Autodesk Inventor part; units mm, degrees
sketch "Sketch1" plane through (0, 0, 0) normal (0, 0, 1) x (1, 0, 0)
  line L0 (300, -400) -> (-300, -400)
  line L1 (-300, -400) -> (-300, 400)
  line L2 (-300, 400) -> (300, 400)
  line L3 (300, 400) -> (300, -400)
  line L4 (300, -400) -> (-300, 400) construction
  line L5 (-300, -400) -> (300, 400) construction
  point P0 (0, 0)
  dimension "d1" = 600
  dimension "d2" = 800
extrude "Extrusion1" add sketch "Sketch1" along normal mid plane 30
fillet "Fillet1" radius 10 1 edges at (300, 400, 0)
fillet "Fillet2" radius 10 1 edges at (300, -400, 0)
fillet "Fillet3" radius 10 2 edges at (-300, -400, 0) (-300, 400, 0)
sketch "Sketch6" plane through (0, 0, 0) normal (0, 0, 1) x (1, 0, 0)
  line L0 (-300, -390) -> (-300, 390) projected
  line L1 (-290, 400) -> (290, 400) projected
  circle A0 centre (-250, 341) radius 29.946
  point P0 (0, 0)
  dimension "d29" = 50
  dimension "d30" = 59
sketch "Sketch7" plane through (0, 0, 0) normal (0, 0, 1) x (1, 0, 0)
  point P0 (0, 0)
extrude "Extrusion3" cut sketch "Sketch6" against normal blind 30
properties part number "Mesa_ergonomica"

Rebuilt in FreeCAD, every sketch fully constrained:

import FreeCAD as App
import Part
import Sketcher

V = App.Vector


def edges_at(feature, points):
    """Names of the edges that pass closest to the given points."""
    edges = feature.Shape.Edges
    near = lambda p: min(range(len(edges)), key=lambda i: edges[i].distToShape(Part.Vertex(*p))[0])
    return sorted({f"Edge{near(p) + 1}" for p in points})


def add_polygon(sketch, points):
    """Adds a closed chain of lines whose ends are joined by coincident constraints."""
    first, n = sketch.GeometryCount, len(points)
    for a, b in zip(points, points[1:] + points[:1]):
        sketch.addGeometry(Part.LineSegment(App.Vector(*a, 0), App.Vector(*b, 0)), False)
    for i in range(n):
        sketch.addConstraint(Sketcher.Constraint("Coincident", first + i, 2, first + (i + 1) % n, 1))

doc = App.newDocument("Part")
params = doc.addObject("Spreadsheet::Sheet", "Params")
for row, (alias, value) in enumerate([
    ("sketch1_width", "600 mm"),
    ("sketch1_height", "800 mm"),
    ("pad1_length", "30 mm"),
    ("fillet_radius", "10 mm"),
    ("fillet2_radius", "10 mm"),
    ("fillet3_radius", "10 mm"),
    ("pocket1_length", "30 mm"),
], start=1):
    params.set(f"A{row}", alias)
    params.set(f"B{row}", "=" + value)
    params.setAlias(f"B{row}", alias)

body = doc.addObject("PartDesign::Body", "Body")

sketch1 = body.newObject("Sketcher::SketchObject", "Sketch")
sketch1.AttachmentSupport = (doc.getObject("XY_Plane"), [""])
sketch1.MapMode = "FlatFace"
add_polygon(sketch1, [(-300, -400), (300, -400), (300, 400), (-300, 400)])
sketch1.addConstraint([
    Sketcher.Constraint("Horizontal", 0),
    Sketcher.Constraint("Vertical", 1),
    Sketcher.Constraint("Horizontal", 2),
    Sketcher.Constraint("Vertical", 3),
    Sketcher.Constraint("Symmetric", 0, 2, 2, 2, -1, 1),
    Sketcher.Constraint("DistanceX", 0, 1, 0, 2, 600.0),
    Sketcher.Constraint("DistanceY", 1, 1, 1, 2, 800.0),
])
sketch1.setExpression("Constraints[9]", "Params.sketch1_width")
sketch1.setExpression("Constraints[10]", "Params.sketch1_height")
pad1 = body.newObject("PartDesign::Pad", "Pad")
pad1.Profile = sketch1
pad1.setExpression("Length", "Params.pad1_length")
pad1.Midplane = True
doc.recompute()

fillet = body.newObject("PartDesign::Fillet", "Fillet")
fillet.Base = (pad1, edges_at(pad1, [(300, 400, 0)]))
fillet.setExpression("Radius", "Params.fillet_radius")
doc.recompute()

fillet2 = body.newObject("PartDesign::Fillet", "Fillet001")
fillet2.Base = (fillet, edges_at(fillet, [(300, -400, 0)]))
fillet2.setExpression("Radius", "Params.fillet2_radius")
doc.recompute()

fillet3 = body.newObject("PartDesign::Fillet", "Fillet002")
fillet3.Base = (fillet2, edges_at(fillet2, [(-300, -400, 0), (-300, 400, 0)]))
fillet3.setExpression("Radius", "Params.fillet3_radius")

sketch2 = body.newObject("Sketcher::SketchObject", "Sketch001")
sketch2.AttachmentSupport = (doc.getObject("XY_Plane"), [""])
sketch2.MapMode = "FlatFace"
sketch2.addGeometry(Part.Circle(V(-250, 341, 0), V(0, 0, 1), 29.946), False)
sketch2.addConstraint([
    Sketcher.Constraint("Diameter", 0, 59.892),
    Sketcher.Constraint("DistanceX", 0, 3, -1, 1, 250.0),
    Sketcher.Constraint("DistanceY", -1, 1, 0, 3, 341.0),
])
pocket1 = body.newObject("PartDesign::Pocket", "Pocket")
pocket1.Profile = sketch2
pocket1.setExpression("Length", "Params.pocket1_length")

doc.recompute()
